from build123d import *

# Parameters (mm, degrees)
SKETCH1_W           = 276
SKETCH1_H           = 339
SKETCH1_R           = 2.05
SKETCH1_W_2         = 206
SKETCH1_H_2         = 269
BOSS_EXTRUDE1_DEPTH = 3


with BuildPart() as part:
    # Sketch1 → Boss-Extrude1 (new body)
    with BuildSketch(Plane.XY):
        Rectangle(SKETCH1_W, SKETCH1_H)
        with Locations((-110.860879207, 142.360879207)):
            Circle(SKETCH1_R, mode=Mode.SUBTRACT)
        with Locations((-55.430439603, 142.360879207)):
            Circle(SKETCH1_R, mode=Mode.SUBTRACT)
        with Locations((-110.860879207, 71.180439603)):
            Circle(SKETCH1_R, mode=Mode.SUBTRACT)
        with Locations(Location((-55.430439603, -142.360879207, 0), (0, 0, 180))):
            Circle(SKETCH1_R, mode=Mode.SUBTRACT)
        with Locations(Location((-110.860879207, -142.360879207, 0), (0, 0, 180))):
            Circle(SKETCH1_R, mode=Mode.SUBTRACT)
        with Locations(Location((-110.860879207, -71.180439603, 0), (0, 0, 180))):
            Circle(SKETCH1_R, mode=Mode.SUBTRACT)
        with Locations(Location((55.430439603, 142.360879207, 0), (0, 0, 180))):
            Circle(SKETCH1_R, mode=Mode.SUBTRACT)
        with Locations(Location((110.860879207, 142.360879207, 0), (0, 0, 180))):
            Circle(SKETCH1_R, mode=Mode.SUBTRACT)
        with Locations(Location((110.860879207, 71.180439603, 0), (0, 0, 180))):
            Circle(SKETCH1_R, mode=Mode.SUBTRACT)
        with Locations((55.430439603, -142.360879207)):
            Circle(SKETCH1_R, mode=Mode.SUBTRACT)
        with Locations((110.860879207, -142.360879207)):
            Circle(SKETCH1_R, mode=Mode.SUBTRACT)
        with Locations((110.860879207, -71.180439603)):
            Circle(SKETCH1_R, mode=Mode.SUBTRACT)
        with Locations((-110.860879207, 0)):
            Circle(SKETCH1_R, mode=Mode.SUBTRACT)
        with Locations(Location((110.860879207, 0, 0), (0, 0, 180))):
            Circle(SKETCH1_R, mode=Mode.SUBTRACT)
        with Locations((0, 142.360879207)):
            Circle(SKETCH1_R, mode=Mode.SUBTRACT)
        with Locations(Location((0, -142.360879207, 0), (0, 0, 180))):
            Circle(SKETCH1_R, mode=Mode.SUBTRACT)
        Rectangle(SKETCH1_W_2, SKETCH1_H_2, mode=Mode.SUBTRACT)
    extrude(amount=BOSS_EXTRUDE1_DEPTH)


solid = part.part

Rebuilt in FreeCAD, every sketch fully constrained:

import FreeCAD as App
import Part
import Sketcher

V = App.Vector
Q = App.Units.Quantity

doc = App.newDocument("Part")
body = doc.addObject("PartDesign::Body", "Body")

# Sketch on XY plane
sketch1 = body.newObject("Sketcher::SketchObject", "Sketch")
sketch1.AttachmentSupport = (doc.getObject("XY_Plane"), [""])
sketch1.MapMode = "FlatFace"
sketch1.addGeometry(Part.LineSegment(V(-138, 169.5, 0), V(-138, -169.5, 0)), False)
sketch1.addGeometry(Part.LineSegment(V(-138, -169.5, 0), V(138, -169.5, 0)), False)
sketch1.addGeometry(Part.LineSegment(V(138, -169.5, 0), V(138, 169.5, 0)), False)
sketch1.addGeometry(Part.LineSegment(V(138, 169.5, 0), V(-138, 169.5, 0)), False)
sketch1.addGeometry(Part.Circle(V(-110.860879, -142.360879, 0), V(0, 0, 1), 2.05), False)
sketch1.addGeometry(Part.Circle(V(-55.43044, -142.360879, 0), V(0, 0, 1), 2.05), False)
sketch1.addGeometry(Part.Circle(V(-110.860879, -71.18044, 0), V(0, 0, 1), 2.05), False)
sketch1.addGeometry(Part.Circle(V(0, -142.360879, 0), V(0, 0, 1), 2.05), False)
sketch1.addGeometry(Part.Circle(V(55.43044, -142.360879, 0), V(0, 0, 1), 2.05), False)
sketch1.addGeometry(Part.Circle(V(110.860879, -142.360879, 0), V(0, 0, 1), 2.05), False)
sketch1.addGeometry(Part.Circle(V(110.860879, -71.18044, 0), V(0, 0, 1), 2.05), False)
sketch1.addGeometry(Part.Circle(V(-110.860879, 0, 0), V(0, 0, 1), 2.05), False)
sketch1.addGeometry(Part.Circle(V(-110.860879, 71.18044, 0), V(0, 0, 1), 2.05), False)
sketch1.addGeometry(Part.Circle(V(-110.860879, 142.360879, 0), V(0, 0, 1), 2.05), False)
sketch1.addGeometry(Part.Circle(V(-55.43044, 142.360879, 0), V(0, 0, 1), 2.05), False)
sketch1.addGeometry(Part.LineSegment(V(103, -134.5, 0), V(-103, -134.5, 0)), False)
sketch1.addGeometry(Part.LineSegment(V(-103, -134.5, 0), V(-103, 134.5, 0)), False)
sketch1.addGeometry(Part.LineSegment(V(-103, 134.5, 0), V(103, 134.5, 0)), False)
sketch1.addGeometry(Part.LineSegment(V(103, 134.5, 0), V(103, -134.5, 0)), False)
sketch1.addGeometry(Part.Circle(V(110.860879, 0, 0), V(0, 0, 1), 2.05), False)
sketch1.addGeometry(Part.Circle(V(110.860879, 71.18044, 0), V(0, 0, 1), 2.05), False)
sketch1.addGeometry(Part.Circle(V(0, 142.360879, 0), V(0, 0, 1), 2.05), False)
sketch1.addGeometry(Part.Circle(V(55.43044, 142.360879, 0), V(0, 0, 1), 2.05), False)
sketch1.addGeometry(Part.Circle(V(110.860879, 142.360879, 0), V(0, 0, 1), 2.05), False)
sketch1.addConstraint(Sketcher.Constraint("Coincident", 0, 2, 1, 1))
sketch1.addConstraint(Sketcher.Constraint("Coincident", 1, 2, 2, 1))
sketch1.addConstraint(Sketcher.Constraint("Coincident", 2, 2, 3, 1))
sketch1.addConstraint(Sketcher.Constraint("Coincident", 3, 2, 0, 1))
sketch1.addConstraint(Sketcher.Constraint("Coincident", 15, 2, 16, 1))
sketch1.addConstraint(Sketcher.Constraint("Coincident", 16, 2, 17, 1))
sketch1.addConstraint(Sketcher.Constraint("Coincident", 17, 2, 18, 1))
sketch1.addConstraint(Sketcher.Constraint("Coincident", 18, 2, 15, 1))
sketch1.addConstraint(Sketcher.Constraint("Vertical", 0))
sketch1.addConstraint(Sketcher.Constraint("Horizontal", 1))
sketch1.addConstraint(Sketcher.Constraint("Vertical", 2))
sketch1.addConstraint(Sketcher.Constraint("Horizontal", 3))
sketch1.addConstraint(Sketcher.Constraint("Horizontal", 15))
sketch1.addConstraint(Sketcher.Constraint("Vertical", 16))
sketch1.addConstraint(Sketcher.Constraint("Horizontal", 17))
sketch1.addConstraint(Sketcher.Constraint("Vertical", 18))
sketch1.addConstraint(Sketcher.Constraint("Equal", 4, 5))
sketch1.addConstraint(Sketcher.Constraint("Equal", 5, 6))
sketch1.addConstraint(Sketcher.Constraint("Equal", 6, 7))
sketch1.addConstraint(Sketcher.Constraint("Equal", 7, 8))
sketch1.addConstraint(Sketcher.Constraint("Equal", 8, 9))
sketch1.addConstraint(Sketcher.Constraint("Equal", 9, 10))
sketch1.addConstraint(Sketcher.Constraint("Equal", 10, 11))
sketch1.addConstraint(Sketcher.Constraint("Equal", 11, 12))
sketch1.addConstraint(Sketcher.Constraint("Equal", 12, 13))
sketch1.addConstraint(Sketcher.Constraint("Equal", 13, 14))
sketch1.addConstraint(Sketcher.Constraint("Equal", 14, 19))
sketch1.addConstraint(Sketcher.Constraint("Equal", 19, 20))
sketch1.addConstraint(Sketcher.Constraint("Equal", 20, 21))
sketch1.addConstraint(Sketcher.Constraint("Equal", 21, 22))
sketch1.addConstraint(Sketcher.Constraint("Equal", 22, 23))
sketch1.addConstraint(Sketcher.Constraint("Symmetric", 10, 3, 12, 3, -1, 1))
sketch1.addConstraint(Sketcher.Constraint("Symmetric", 9, 3, 13, 3, -1, 1))
sketch1.addConstraint(Sketcher.Constraint("Symmetric", 8, 3, 14, 3, -1, 1))
sketch1.addConstraint(Sketcher.Constraint("Symmetric", 11, 3, 19, 3, -1, 1))
sketch1.addConstraint(Sketcher.Constraint("Symmetric", 6, 3, 20, 3, -1, 1))
sketch1.addConstraint(Sketcher.Constraint("Symmetric", 7, 3, 21, 3, -1, 1))
sketch1.addConstraint(Sketcher.Constraint("Symmetric", 5, 3, 22, 3, -1, 1))
sketch1.addConstraint(Sketcher.Constraint("Symmetric", 4, 3, 23, 3, -1, 1))
sketch1.addConstraint(Sketcher.Constraint("Symmetric", 0, 2, 2, 2, -1, 1))
sketch1.addConstraint(Sketcher.Constraint("Symmetric", 15, 2, 17, 2, -1, 1))
sketch1.addConstraint(Sketcher.Constraint("Symmetric", 5, 3, 8, 3, -2))
sketch1.addConstraint(Sketcher.Constraint("Symmetric", 4, 3, 9, 3, -2))
sketch1.addConstraint(Sketcher.Constraint("Symmetric", 6, 3, 10, 3, -2))
sketch1.addConstraint(Sketcher.Constraint("PointOnObject", 7, 3, -2))
sketch1.addConstraint(Sketcher.Constraint("PointOnObject", 11, 3, -1))
sketch1.addConstraint(Sketcher.Constraint("Horizontal", 4, 3, 5, 3))
sketch1.addConstraint(Sketcher.Constraint("Horizontal", 5, 3, 7, 3))
sketch1.addConstraint(Sketcher.Constraint("Vertical", 4, 3, 6, 3))
sketch1.addConstraint(Sketcher.Constraint("Vertical", 6, 3, 11, 3))
sketch1.addConstraint(Sketcher.Constraint("Diameter", 4, Q("4.1 mm")))
sketch1.addConstraint(Sketcher.Constraint("DistanceX", 1, 1, 1, 2, Q("276 mm")))
sketch1.addConstraint(Sketcher.Constraint("DistanceX", 15, 2, 15, 1, Q("206 mm")))
sketch1.addConstraint(Sketcher.Constraint("DistanceY", 0, 2, 0, 1, Q("339 mm")))
sketch1.addConstraint(Sketcher.Constraint("DistanceY", 16, 1, 16, 2, Q("269 mm")))
sketch1.addConstraint(Sketcher.Constraint("DistanceX", 4, 3, -1, 1, Q("110.860879 mm")))
sketch1.addConstraint(Sketcher.Constraint("DistanceY", 4, 3, -1, 1, Q("142.360879 mm")))
sketch1.addConstraint(Sketcher.Constraint("DistanceX", 5, 3, -1, 1, Q("55.43044 mm")))
sketch1.addConstraint(Sketcher.Constraint("DistanceY", 6, 3, -1, 1, Q("71.18044 mm")))
pad1 = body.newObject("PartDesign::Pad", "Pad")
pad1.Profile = sketch1
pad1.Length = 3

doc.recompute()
